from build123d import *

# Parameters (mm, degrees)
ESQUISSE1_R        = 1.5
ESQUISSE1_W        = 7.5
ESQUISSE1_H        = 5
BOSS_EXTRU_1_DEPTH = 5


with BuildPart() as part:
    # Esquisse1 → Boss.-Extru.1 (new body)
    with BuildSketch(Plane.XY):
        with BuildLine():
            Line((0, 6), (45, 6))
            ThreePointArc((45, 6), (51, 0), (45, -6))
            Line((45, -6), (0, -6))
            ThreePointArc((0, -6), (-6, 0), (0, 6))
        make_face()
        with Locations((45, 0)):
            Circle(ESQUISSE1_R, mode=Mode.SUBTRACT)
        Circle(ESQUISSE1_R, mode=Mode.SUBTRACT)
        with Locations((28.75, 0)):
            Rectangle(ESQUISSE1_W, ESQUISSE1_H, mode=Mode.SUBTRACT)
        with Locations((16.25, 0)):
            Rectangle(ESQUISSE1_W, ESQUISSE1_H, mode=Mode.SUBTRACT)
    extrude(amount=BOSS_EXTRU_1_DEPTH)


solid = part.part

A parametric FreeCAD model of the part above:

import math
import FreeCAD as App
import Part
import Sketcher

V = App.Vector


def add_polygon(sketch, points):
    """Adds a closed chain of lines whose ends are joined by coincident constraints."""
    first, n = sketch.GeometryCount, len(points)
    for a, b in zip(points, points[1:] + points[:1]):
        sketch.addGeometry(Part.LineSegment(App.Vector(*a, 0), App.Vector(*b, 0)), False)
    for i in range(n):
        sketch.addConstraint(Sketcher.Constraint("Coincident", first + i, 2, first + (i + 1) % n, 1))

doc = App.newDocument("Part")
params = doc.addObject("Spreadsheet::Sheet", "Params")
for row, (alias, value) in enumerate([
    ("sketch1_diameter", "3 mm"),
    ("sketch1_radius", "6 mm"),
    ("sketch1_width", "45 mm"),
    ("sketch1_height", "5 mm"),
    ("sketch1_width2", "7.5 mm"),
    ("pad1_length", "5 mm"),
], start=1):
    params.set(f"A{row}", alias)
    params.set(f"B{row}", "=" + value)
    params.setAlias(f"B{row}", alias)

body = doc.addObject("PartDesign::Body", "Body")

sketch1 = body.newObject("Sketcher::SketchObject", "Sketch")
sketch1.AttachmentSupport = (doc.getObject("XY_Plane"), [""])
sketch1.MapMode = "FlatFace"
sketch1.addGeometry(Part.LineSegment(V(45, 6, 0), V(0, 6, 0)), False)
sketch1.addGeometry(Part.ArcOfCircle(Part.Circle(V(0, 0, 0), V(0, 0, 1), 6), math.radians(90), math.radians(270)), False)
sketch1.addGeometry(Part.LineSegment(V(0, -6, 0), V(45, -6, 0)), False)
sketch1.addGeometry(Part.ArcOfCircle(Part.Circle(V(45, 0, 0), V(0, 0, 1), 6), math.radians(-90), math.radians(90)), False)
sketch1.addGeometry(Part.Circle(V(45, 0, 0), V(0, 0, 1), 1.5), False)
add_polygon(sketch1, [(25, -2.5), (25, 2.5), (32.5, 2.5), (32.5, -2.5)])
add_polygon(sketch1, [(12.5, -2.5), (12.5, 2.5), (20, 2.5), (20, -2.5)])
sketch1.addGeometry(Part.Circle(V(0, 0, 0), V(0, 0, 1), 1.5), False)
sketch1.addConstraint(Sketcher.Constraint("Tangent", 0, 2, 1, 1))
sketch1.addConstraint(Sketcher.Constraint("Tangent", 1, 2, 2, 1))
sketch1.addConstraint(Sketcher.Constraint("Tangent", 2, 2, 3, 1))
sketch1.addConstraint(Sketcher.Constraint("Tangent", 3, 2, 0, 1))
sketch1.addConstraint(Sketcher.Constraint("Horizontal", 0))
sketch1.addConstraint(Sketcher.Constraint("Horizontal", 2))
sketch1.addConstraint(Sketcher.Constraint("Vertical", 5))
sketch1.addConstraint(Sketcher.Constraint("Horizontal", 6))
sketch1.addConstraint(Sketcher.Constraint("Vertical", 7))
sketch1.addConstraint(Sketcher.Constraint("Horizontal", 8))
sketch1.addConstraint(Sketcher.Constraint("Vertical", 9))
sketch1.addConstraint(Sketcher.Constraint("Horizontal", 10))
sketch1.addConstraint(Sketcher.Constraint("Vertical", 11))
sketch1.addConstraint(Sketcher.Constraint("Horizontal", 12))
sketch1.addConstraint(Sketcher.Constraint("Coincident", 1, 3, -1, 1))
sketch1.addConstraint(Sketcher.Constraint("Coincident", 13, 3, -1, 1))
sketch1.addConstraint(Sketcher.Constraint("Coincident", 4, 3, 3, 3))
sketch1.addConstraint(Sketcher.Constraint("Equal", 4, 13))
sketch1.addConstraint(Sketcher.Constraint("Horizontal", 6, 2, 9, 2))
sketch1.addConstraint(Sketcher.Constraint("Horizontal", 8, 2, 11, 2))
sketch1.addConstraint(Sketcher.Constraint("Equal", 8, 10))
sketch1.addConstraint(Sketcher.Constraint("Diameter", 4, 3.0))
sketch1.addConstraint(Sketcher.Constraint("Radius", 1, 6.0))
sketch1.addConstraint(Sketcher.Constraint("DistanceX", 0, 2, 0, 1, 45.0))
sketch1.addConstraint(Sketcher.Constraint("DistanceY", 5, 1, 5, 2, 5.0))
sketch1.addConstraint(Sketcher.Constraint("DistanceX", 6, 1, 6, 2, 7.5))
sketch1.addConstraint(Sketcher.Constraint("DistanceX", -1, 1, 5, 2, 25.0))
sketch1.addConstraint(Sketcher.Constraint("DistanceX", -1, 1, 10, 2, 20.0))
sketch1.addConstraint(Sketcher.Constraint("DistanceY", -1, 1, 5, 2, 2.5))
sketch1.setExpression("Constraints[29]", "Params.sketch1_diameter")
sketch1.setExpression("Constraints[30]", "Params.sketch1_radius")
sketch1.setExpression("Constraints[31]", "Params.sketch1_width")
sketch1.setExpression("Constraints[32]", "Params.sketch1_height")
sketch1.setExpression("Constraints[33]", "Params.sketch1_width2")
pad1 = body.newObject("PartDesign::Pad", "Pad")
pad1.Profile = sketch1
pad1.setExpression("Length", "Params.pad1_length")

doc.recompute()
